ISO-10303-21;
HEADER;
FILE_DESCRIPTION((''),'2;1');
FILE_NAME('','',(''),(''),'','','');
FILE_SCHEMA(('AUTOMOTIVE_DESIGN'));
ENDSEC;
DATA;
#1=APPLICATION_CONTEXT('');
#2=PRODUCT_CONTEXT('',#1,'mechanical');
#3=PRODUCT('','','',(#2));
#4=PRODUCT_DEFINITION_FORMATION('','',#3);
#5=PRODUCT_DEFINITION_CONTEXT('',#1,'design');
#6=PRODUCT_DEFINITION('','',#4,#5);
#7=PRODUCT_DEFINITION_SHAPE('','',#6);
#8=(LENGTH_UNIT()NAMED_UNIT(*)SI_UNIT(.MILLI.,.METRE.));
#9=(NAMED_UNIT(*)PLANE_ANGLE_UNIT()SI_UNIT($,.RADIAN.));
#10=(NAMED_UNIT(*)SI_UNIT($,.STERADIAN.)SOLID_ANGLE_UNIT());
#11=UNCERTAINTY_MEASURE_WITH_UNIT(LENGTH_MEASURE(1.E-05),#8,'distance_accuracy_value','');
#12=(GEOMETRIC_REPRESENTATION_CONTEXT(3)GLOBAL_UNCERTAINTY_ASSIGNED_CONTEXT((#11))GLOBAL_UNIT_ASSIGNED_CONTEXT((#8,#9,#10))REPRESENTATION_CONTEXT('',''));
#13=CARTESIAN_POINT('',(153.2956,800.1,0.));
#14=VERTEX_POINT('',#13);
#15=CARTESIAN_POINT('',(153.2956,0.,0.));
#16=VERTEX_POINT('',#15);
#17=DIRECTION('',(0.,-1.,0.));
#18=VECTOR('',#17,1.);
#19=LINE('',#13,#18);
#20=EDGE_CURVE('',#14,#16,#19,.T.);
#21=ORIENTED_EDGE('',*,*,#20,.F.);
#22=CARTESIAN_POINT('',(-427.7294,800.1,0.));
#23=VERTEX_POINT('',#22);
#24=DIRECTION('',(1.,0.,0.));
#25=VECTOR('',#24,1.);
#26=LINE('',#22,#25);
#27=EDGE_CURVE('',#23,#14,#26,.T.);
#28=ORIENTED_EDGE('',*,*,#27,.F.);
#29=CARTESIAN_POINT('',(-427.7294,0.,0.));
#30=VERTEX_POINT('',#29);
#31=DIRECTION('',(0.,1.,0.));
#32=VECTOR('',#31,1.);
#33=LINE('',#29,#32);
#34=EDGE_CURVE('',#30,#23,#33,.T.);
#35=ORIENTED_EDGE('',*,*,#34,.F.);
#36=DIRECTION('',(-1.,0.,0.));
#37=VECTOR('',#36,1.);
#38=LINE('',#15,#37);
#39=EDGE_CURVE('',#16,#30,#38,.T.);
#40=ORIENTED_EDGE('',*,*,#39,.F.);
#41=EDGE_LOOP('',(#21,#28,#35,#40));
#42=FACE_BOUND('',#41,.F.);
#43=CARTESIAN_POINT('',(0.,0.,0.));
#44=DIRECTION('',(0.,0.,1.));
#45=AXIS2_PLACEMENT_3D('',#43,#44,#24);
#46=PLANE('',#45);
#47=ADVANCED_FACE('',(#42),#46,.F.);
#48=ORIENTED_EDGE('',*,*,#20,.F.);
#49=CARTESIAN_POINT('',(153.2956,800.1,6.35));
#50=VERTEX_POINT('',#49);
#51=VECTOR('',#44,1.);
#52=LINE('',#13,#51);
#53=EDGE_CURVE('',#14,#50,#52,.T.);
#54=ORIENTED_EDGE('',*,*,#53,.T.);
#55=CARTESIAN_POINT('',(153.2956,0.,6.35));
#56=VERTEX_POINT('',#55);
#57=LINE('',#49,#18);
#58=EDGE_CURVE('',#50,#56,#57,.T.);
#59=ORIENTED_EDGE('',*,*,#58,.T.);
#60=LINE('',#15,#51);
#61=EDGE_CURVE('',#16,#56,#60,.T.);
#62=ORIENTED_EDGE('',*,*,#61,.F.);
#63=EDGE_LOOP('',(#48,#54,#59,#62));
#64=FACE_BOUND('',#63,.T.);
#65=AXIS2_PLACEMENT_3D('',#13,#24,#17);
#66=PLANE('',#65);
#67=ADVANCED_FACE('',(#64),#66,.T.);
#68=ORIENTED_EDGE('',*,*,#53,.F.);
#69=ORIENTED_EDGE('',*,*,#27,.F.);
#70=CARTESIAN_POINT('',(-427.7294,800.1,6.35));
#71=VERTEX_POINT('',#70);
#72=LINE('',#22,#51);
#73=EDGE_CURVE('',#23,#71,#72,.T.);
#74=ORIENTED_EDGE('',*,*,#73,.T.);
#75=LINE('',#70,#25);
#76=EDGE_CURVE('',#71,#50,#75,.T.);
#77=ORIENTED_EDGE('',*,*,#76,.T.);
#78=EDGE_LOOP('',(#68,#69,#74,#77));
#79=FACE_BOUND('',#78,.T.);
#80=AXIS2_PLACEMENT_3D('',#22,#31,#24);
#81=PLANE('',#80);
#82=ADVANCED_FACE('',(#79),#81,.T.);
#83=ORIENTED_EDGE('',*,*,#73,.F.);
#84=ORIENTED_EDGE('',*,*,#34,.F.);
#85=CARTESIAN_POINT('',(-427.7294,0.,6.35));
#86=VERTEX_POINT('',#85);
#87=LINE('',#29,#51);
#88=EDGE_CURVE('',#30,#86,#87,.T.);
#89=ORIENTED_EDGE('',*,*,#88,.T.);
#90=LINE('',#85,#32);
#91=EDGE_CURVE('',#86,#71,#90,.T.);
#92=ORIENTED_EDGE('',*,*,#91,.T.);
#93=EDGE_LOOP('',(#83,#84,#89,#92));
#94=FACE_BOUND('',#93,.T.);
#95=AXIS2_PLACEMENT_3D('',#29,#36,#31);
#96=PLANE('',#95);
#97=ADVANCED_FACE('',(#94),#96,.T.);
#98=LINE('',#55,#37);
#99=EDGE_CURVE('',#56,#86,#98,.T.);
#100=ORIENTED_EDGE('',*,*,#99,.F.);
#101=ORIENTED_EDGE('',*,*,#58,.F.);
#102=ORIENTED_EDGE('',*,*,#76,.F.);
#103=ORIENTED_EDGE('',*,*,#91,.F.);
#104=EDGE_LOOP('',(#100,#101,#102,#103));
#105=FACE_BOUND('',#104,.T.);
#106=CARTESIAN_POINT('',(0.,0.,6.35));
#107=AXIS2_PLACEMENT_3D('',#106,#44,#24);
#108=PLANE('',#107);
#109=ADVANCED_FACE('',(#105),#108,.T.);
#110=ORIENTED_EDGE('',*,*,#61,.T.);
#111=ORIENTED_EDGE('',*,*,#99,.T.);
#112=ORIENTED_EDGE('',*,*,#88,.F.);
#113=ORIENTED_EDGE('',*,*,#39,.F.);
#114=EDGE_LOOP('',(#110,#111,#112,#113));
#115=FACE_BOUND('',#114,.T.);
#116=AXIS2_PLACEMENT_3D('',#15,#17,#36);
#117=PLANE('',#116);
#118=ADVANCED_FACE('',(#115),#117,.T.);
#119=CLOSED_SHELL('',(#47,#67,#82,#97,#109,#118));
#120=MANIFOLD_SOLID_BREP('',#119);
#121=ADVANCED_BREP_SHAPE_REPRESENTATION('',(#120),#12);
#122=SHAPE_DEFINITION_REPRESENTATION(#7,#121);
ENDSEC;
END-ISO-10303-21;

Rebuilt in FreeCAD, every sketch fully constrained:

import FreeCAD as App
import Part
import Sketcher
from FreeCAD import Vector
Q = App.Units.Quantity

doc = App.newDocument("Part")
params = doc.addObject("Spreadsheet::Sheet", "Params")
for row, (alias, value) in enumerate([
    ("sketch1_height", "31.5 in"),
    ("sketch1_width", "22.875 in"),
    ("pad1_length", "0.25 in"),
], start=1):
    params.set(f"A{row}", alias)
    params.set(f"B{row}", "=" + value)
    params.setAlias(f"B{row}", alias)

body = doc.addObject("PartDesign::Body", "Body")

sketch1 = body.newObject("Sketcher::SketchObject", "Sketch")
sketch1.AttachmentSupport = (doc.getObject("XY_Plane"), [""])
sketch1.MapMode = "FlatFace"
sketch1.addGeometry([
    Part.LineSegment(Vector(-428, 0, 0), Vector(153, 0, 0)),
    Part.LineSegment(Vector(153, 0, 0), Vector(153, 800, 0)),
    Part.LineSegment(Vector(153, 800, 0), Vector(-428, 800, 0)),
    Part.LineSegment(Vector(-428, 800, 0), Vector(-428, 0, 0)),
], False)
sketch1.addConstraint([
    Sketcher.Constraint("Coincident", 0, 2, 1, 1),
    Sketcher.Constraint("Coincident", 1, 2, 2, 1),
    Sketcher.Constraint("Coincident", 2, 2, 3, 1),
    Sketcher.Constraint("Coincident", 3, 2, 0, 1),
    Sketcher.Constraint("Horizontal", 0),
    Sketcher.Constraint("Vertical", 1),
    Sketcher.Constraint("Horizontal", 2),
    Sketcher.Constraint("Vertical", 3),
    Sketcher.Constraint("PointOnObject", 0, 2, -1),
    Sketcher.Constraint("DistanceY", 1, 1, 1, 2, Q("31.5 in")),
    Sketcher.Constraint("DistanceX", 0, 1, 0, 2, Q("22.875 in")),
    Sketcher.Constraint("DistanceX", -1, 1, 0, 2, 153.2956),
])
sketch1.setExpression("Constraints[9]", "Params.sketch1_height")
sketch1.setExpression("Constraints[10]", "Params.sketch1_width")
pad1 = body.newObject("PartDesign::Pad", "Pad")
pad1.Profile = sketch1
pad1.setExpression("Length", "Params.pad1_length")

doc.recompute()
